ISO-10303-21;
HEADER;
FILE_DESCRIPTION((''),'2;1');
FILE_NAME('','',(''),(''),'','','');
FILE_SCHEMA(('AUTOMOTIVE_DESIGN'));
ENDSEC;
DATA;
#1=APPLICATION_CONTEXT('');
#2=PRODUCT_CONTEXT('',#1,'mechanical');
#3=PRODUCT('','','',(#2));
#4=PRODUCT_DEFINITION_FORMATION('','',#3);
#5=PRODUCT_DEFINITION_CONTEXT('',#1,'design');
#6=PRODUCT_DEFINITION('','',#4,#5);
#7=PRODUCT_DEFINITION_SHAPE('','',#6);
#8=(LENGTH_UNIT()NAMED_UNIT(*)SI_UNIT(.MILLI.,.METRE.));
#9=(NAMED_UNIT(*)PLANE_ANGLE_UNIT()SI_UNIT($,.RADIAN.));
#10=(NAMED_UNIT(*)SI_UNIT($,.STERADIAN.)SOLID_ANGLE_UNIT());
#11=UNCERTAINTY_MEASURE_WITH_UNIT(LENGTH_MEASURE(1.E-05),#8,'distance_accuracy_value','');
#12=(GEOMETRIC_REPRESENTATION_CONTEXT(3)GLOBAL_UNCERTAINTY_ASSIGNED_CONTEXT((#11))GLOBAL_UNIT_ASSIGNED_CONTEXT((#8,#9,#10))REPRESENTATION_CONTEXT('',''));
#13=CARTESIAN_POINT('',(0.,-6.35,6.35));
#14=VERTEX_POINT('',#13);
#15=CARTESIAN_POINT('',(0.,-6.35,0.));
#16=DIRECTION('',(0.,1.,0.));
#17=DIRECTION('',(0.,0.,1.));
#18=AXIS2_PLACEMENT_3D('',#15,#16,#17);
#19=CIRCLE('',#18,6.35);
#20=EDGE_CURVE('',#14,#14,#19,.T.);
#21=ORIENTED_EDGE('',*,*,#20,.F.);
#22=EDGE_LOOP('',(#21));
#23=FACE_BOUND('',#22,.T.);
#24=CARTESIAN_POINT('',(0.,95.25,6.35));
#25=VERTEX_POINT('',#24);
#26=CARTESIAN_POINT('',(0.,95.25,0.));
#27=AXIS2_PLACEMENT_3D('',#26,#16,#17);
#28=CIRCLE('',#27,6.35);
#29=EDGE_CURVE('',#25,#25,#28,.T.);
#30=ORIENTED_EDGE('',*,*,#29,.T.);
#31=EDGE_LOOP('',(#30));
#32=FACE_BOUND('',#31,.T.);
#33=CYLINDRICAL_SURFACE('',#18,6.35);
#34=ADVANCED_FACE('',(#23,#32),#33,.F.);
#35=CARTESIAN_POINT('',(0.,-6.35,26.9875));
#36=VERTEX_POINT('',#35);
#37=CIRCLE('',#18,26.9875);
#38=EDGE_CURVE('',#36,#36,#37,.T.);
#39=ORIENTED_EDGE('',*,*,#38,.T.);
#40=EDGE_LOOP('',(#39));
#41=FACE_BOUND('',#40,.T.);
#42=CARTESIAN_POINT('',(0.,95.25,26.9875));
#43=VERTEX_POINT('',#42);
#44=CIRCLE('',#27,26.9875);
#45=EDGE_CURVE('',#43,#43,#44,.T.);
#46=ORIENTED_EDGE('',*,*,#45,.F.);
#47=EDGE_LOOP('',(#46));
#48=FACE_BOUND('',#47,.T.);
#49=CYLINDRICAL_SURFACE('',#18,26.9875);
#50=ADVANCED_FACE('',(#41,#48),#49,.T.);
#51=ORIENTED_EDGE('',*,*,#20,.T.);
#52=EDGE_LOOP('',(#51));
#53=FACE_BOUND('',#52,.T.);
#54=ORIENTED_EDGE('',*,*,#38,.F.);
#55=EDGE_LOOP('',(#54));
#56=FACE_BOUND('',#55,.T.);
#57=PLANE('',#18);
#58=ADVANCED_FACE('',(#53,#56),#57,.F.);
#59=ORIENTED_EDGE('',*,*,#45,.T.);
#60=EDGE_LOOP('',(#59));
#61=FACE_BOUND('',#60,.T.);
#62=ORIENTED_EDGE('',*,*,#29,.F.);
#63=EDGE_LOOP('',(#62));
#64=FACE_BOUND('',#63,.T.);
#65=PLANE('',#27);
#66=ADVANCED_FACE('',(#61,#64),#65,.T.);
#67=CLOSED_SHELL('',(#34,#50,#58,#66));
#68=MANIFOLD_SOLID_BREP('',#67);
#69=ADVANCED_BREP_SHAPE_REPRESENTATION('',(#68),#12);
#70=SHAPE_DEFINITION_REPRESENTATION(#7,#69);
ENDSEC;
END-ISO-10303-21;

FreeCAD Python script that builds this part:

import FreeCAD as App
import Part
import Sketcher
Q = App.Units.Quantity

doc = App.newDocument("Part")
body = doc.addObject("PartDesign::Body", "Body")

sketch1 = body.newObject("Sketcher::SketchObject", "Sketch")
sketch1.AttachmentSupport = (doc.getObject("XZ_Plane"), [""])
sketch1.MapMode = "FlatFace"
sketch1.addGeometry(Part.Circle(App.Vector(0, 0, 0), App.Vector(0, 0, 1), 27), False)
sketch1.addGeometry(Part.Circle(App.Vector(0, 0, 0), App.Vector(0, 0, 1), 6), False)
sketch1.addConstraint(Sketcher.Constraint("Coincident", 0, 3, -1, 1))
sketch1.addConstraint(Sketcher.Constraint("Coincident", 1, 3, -1, 1))
sketch1.addConstraint(Sketcher.Constraint("Diameter", 1, Q("0.5 in")))
sketch1.addConstraint(Sketcher.Constraint("Diameter", 0, Q("2.125 in")))
pad1 = body.newObject("PartDesign::Pad", "Pad")
pad1.Profile = sketch1
pad1.Type = "TwoLengths"
pad1.Length = Q("3.75 in")
pad1.Length2 = Q("0.25 in")
pad1.Reversed = True

doc.recompute()
